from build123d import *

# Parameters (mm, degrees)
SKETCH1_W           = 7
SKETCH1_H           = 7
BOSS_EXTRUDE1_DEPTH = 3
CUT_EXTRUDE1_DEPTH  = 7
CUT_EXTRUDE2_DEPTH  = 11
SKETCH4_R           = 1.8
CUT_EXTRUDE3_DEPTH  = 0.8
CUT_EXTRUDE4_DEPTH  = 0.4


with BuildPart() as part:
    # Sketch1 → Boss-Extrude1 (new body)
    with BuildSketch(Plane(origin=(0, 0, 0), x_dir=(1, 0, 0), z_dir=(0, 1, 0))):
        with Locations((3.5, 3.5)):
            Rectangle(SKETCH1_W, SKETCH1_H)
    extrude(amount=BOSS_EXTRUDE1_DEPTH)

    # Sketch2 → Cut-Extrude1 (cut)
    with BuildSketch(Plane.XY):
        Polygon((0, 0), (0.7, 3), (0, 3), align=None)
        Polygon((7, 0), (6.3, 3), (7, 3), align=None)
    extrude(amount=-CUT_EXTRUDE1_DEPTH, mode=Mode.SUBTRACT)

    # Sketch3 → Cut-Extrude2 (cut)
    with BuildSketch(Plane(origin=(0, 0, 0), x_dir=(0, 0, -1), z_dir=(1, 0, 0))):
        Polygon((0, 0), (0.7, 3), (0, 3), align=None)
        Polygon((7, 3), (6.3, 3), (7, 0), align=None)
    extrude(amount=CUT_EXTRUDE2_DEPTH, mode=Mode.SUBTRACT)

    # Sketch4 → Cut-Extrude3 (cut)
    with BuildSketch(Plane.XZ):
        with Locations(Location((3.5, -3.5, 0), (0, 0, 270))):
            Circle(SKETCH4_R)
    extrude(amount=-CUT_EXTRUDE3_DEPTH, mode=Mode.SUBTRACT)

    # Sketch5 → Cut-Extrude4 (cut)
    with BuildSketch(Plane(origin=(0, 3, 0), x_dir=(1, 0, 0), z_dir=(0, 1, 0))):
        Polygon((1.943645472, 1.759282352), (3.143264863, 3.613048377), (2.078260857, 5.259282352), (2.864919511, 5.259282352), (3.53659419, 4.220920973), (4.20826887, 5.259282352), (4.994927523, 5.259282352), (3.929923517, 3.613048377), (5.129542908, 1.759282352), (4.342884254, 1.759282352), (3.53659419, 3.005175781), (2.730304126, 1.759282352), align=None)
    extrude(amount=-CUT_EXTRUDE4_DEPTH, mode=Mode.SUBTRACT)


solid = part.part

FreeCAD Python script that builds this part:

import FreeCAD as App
import Part
import Sketcher

V = App.Vector

doc = App.newDocument("Part")
params = doc.addObject("Spreadsheet::Sheet", "Params")
for row, (alias, value) in enumerate([
    ("sketch1_width", "7 mm"),
    ("pad1_length", "3 mm"),
    ("sketch2_height", "3 mm"),
    ("sketch2_width", "0.7 mm"),
    ("pocket1_length", "7 mm"),
    ("sketch3_width", "3 mm"),
    ("sketch3_height", "0.7 mm"),
    ("pocket2_length", "11 mm"),
    ("sketch4_diameter", "3.6 mm"),
    ("pocket3_length", "0.8 mm"),
    ("pocket4_length", "0.4 mm"),
], start=1):
    params.set(f"A{row}", alias)
    params.set(f"B{row}", "=" + value)
    params.setAlias(f"B{row}", alias)

body = doc.addObject("PartDesign::Body", "Body")

# Sketch on XZ plane
sketch1 = body.newObject("Sketcher::SketchObject", "Sketch")
sketch1.AttachmentSupport = (doc.getObject("XZ_Plane"), [""])
sketch1.MapMode = "FlatFace"
sketch1.addGeometry([
    Part.LineSegment(V(0, -7, 0), V(0, 0, 0)),
    Part.LineSegment(V(0, 0, 0), V(7, 0, 0)),
    Part.LineSegment(V(7, 0, 0), V(7, -7, 0)),
    Part.LineSegment(V(7, -7, 0), V(0, -7, 0)),
], False)
sketch1.addConstraint([
    Sketcher.Constraint("Coincident", 0, 2, 1, 1),
    Sketcher.Constraint("Coincident", 1, 2, 2, 1),
    Sketcher.Constraint("Coincident", 2, 2, 3, 1),
    Sketcher.Constraint("Coincident", 3, 2, 0, 1),
    Sketcher.Constraint("Vertical", 0),
    Sketcher.Constraint("Horizontal", 1),
    Sketcher.Constraint("Vertical", 2),
    Sketcher.Constraint("Horizontal", 3),
    Sketcher.Constraint("Coincident", 0, 2, -1, 1),
    Sketcher.Constraint("Equal", 3, 0),
    Sketcher.Constraint("DistanceX", 1, 1, 1, 2, 7.0),
])
sketch1.setExpression("Constraints[10]", "Params.sketch1_width")
pad1 = body.newObject("PartDesign::Pad", "Pad")
pad1.Profile = sketch1
pad1.setExpression("Length", "Params.pad1_length")
pad1.Reversed = True

# Sketch on XY plane
sketch2 = body.newObject("Sketcher::SketchObject", "Sketch001")
sketch2.AttachmentSupport = (doc.getObject("XY_Plane"), [""])
sketch2.MapMode = "FlatFace"
sketch2.addGeometry([
    Part.LineSegment(V(0, 0, 0), V(0.7, 3, 0)),  # 0
    Part.LineSegment(V(0.7, 3, 0), V(0, 3, 0)),  # 1
    Part.LineSegment(V(0, 3, 0), V(0, 0, 0)),  # 2
    Part.LineSegment(V(6.3, 3, 0), V(7, 0, 0)),  # 3
    Part.LineSegment(V(7, 0, 0), V(7, 3, 0)),  # 4
    Part.LineSegment(V(7, 3, 0), V(6.3, 3, 0)),  # 5
], False)
sketch2.addConstraint([
    Sketcher.Constraint("Coincident", 0, 2, 1, 1),
    Sketcher.Constraint("Coincident", 1, 2, 2, 1),
    Sketcher.Constraint("Coincident", 2, 2, 0, 1),
    Sketcher.Constraint("Coincident", 3, 2, 4, 1),
    Sketcher.Constraint("Coincident", 4, 2, 5, 1),
    Sketcher.Constraint("Coincident", 5, 2, 3, 1),
    Sketcher.Constraint("Horizontal", 1),
    Sketcher.Constraint("Vertical", 2),
    Sketcher.Constraint("Vertical", 4),
    Sketcher.Constraint("Horizontal", 5),
    Sketcher.Constraint("Coincident", 2, 2, -1, 1),
    Sketcher.Constraint("PointOnObject", 3, 2, -1),
    Sketcher.Constraint("Horizontal", 1, 2, 4, 2),
    Sketcher.Constraint("Equal", 1, 5),
    Sketcher.Constraint("DistanceY", 2, 2, 2, 1, 3.0),
    Sketcher.Constraint("DistanceX", 1, 2, 1, 1, 0.7),
    Sketcher.Constraint("DistanceX", -1, 1, 3, 2, 7.0),
])
sketch2.setExpression("Constraints[14]", "Params.sketch2_height")
sketch2.setExpression("Constraints[15]", "Params.sketch2_width")
pocket1 = body.newObject("PartDesign::Pocket", "Pocket")
pocket1.Profile = sketch2
pocket1.setExpression("Length", "Params.pocket1_length")

# Sketch on YZ plane
sketch3 = body.newObject("Sketcher::SketchObject", "Sketch002")
sketch3.AttachmentSupport = (doc.getObject("YZ_Plane"), [""])
sketch3.MapMode = "FlatFace"
sketch3.addGeometry([
    Part.LineSegment(V(0, 0, 0), V(3, -0.7, 0)),  # 0
    Part.LineSegment(V(3, -0.7, 0), V(3, 0, 0)),  # 1
    Part.LineSegment(V(3, 0, 0), V(0, 0, 0)),  # 2
    Part.LineSegment(V(3, -7, 0), V(3, -6.3, 0)),  # 3
    Part.LineSegment(V(3, -6.3, 0), V(0, -7, 0)),  # 4
    Part.LineSegment(V(0, -7, 0), V(3, -7, 0)),  # 5
], False)
sketch3.addConstraint([
    Sketcher.Constraint("Coincident", 0, 2, 1, 1),
    Sketcher.Constraint("Coincident", 1, 2, 2, 1),
    Sketcher.Constraint("Coincident", 2, 2, 0, 1),
    Sketcher.Constraint("Coincident", 3, 2, 4, 1),
    Sketcher.Constraint("Coincident", 4, 2, 5, 1),
    Sketcher.Constraint("Coincident", 5, 2, 3, 1),
    Sketcher.Constraint("Vertical", 1),
    Sketcher.Constraint("Horizontal", 2),
    Sketcher.Constraint("Vertical", 3),
    Sketcher.Constraint("Horizontal", 5),
    Sketcher.Constraint("Coincident", 2, 2, -1, 1),
    Sketcher.Constraint("PointOnObject", 4, 2, -2),
    Sketcher.Constraint("Vertical", 1, 2, 3, 2),
    Sketcher.Constraint("Equal", 1, 3),
    Sketcher.Constraint("DistanceX", 2, 2, 2, 1, 3.0),
    Sketcher.Constraint("DistanceY", 1, 1, 1, 2, 0.7),
    Sketcher.Constraint("DistanceY", 4, 2, -1, 1, 7.0),
])
sketch3.setExpression("Constraints[14]", "Params.sketch3_width")
sketch3.setExpression("Constraints[15]", "Params.sketch3_height")
pocket2 = body.newObject("PartDesign::Pocket", "Pocket001")
pocket2.Profile = sketch3
pocket2.setExpression("Length", "Params.pocket2_length")
pocket2.Reversed = True

# Sketch on XZ plane
sketch4 = body.newObject("Sketcher::SketchObject", "Sketch003")
sketch4.AttachmentSupport = (doc.getObject("XZ_Plane"), [""])
sketch4.MapMode = "FlatFace"
sketch4.addGeometry(Part.Circle(V(3.5, -3.5, 0), V(0, 0, 1), 1.8), False)
sketch4.addConstraint([
    Sketcher.Constraint("Diameter", 0, 3.6),
    Sketcher.Constraint("DistanceX", -1, 1, 0, 3, 3.5),
    Sketcher.Constraint("DistanceY", 0, 3, -1, 1, 3.5),
])
sketch4.setExpression("Constraints[0]", "Params.sketch4_diameter")
pocket3 = body.newObject("PartDesign::Pocket", "Pocket002")
pocket3.Profile = sketch4
pocket3.setExpression("Length", "Params.pocket3_length")

# Sketch on XZ plane
sketch5 = body.newObject("Sketcher::SketchObject", "Sketch004")
sketch5.AttachmentSupport = (doc.getObject("XZ_Plane"), [""])
sketch5.MapMode = "FlatFace"
sketch5.AttachmentOffset = App.Placement(V(0, 0, -3), App.Rotation())
sketch5.addGeometry([
    Part.LineSegment(V(3.143265, -3.613048, 0), V(1.943645, -1.759282, 0)),  # 0
    Part.LineSegment(V(1.943645, -1.759282, 0), V(2.730304, -1.759282, 0)),  # 1
    Part.LineSegment(V(2.730304, -1.759282, 0), V(3.536594, -3.005176, 0)),  # 2
    Part.LineSegment(V(3.536594, -3.005176, 0), V(4.342884, -1.759282, 0)),  # 3
    Part.LineSegment(V(4.342884, -1.759282, 0), V(5.129543, -1.759282, 0)),  # 4
    Part.LineSegment(V(5.129543, -1.759282, 0), V(3.929924, -3.613048, 0)),  # 5
    Part.LineSegment(V(3.929924, -3.613048, 0), V(4.994928, -5.259282, 0)),  # 6
    Part.LineSegment(V(4.994928, -5.259282, 0), V(4.208269, -5.259282, 0)),  # 7
    Part.LineSegment(V(4.208269, -5.259282, 0), V(3.536594, -4.220921, 0)),  # 8
    Part.LineSegment(V(3.536594, -4.220921, 0), V(2.86492, -5.259282, 0)),  # 9
    Part.LineSegment(V(2.86492, -5.259282, 0), V(2.078261, -5.259282, 0)),  # 10
    Part.LineSegment(V(2.078261, -5.259282, 0), V(3.143265, -3.613048, 0)),  # 11
], False)
sketch5.addConstraint([
    Sketcher.Constraint("Coincident", 0, 2, 1, 1),
    Sketcher.Constraint("Coincident", 1, 2, 2, 1),
    Sketcher.Constraint("Coincident", 2, 2, 3, 1),
    Sketcher.Constraint("Coincident", 3, 2, 4, 1),
    Sketcher.Constraint("Coincident", 4, 2, 5, 1),
    Sketcher.Constraint("Coincident", 5, 2, 6, 1),
    Sketcher.Constraint("Coincident", 6, 2, 7, 1),
    Sketcher.Constraint("Coincident", 7, 2, 8, 1),
    Sketcher.Constraint("Coincident", 8, 2, 9, 1),
    Sketcher.Constraint("Coincident", 9, 2, 10, 1),
    Sketcher.Constraint("Coincident", 10, 2, 11, 1),
    Sketcher.Constraint("Coincident", 11, 2, 0, 1),
    Sketcher.Constraint("Horizontal", 1),
    Sketcher.Constraint("Horizontal", 4),
    Sketcher.Constraint("Horizontal", 7),
    Sketcher.Constraint("Horizontal", 10),
    Sketcher.Constraint("Horizontal", 1, 2, 3, 2),
    Sketcher.Constraint("Horizontal", 7, 2, 9, 2),
    Sketcher.Constraint("Horizontal", 5, 2, 11, 2),
    Sketcher.Constraint("Vertical", 2, 2, 8, 2),
    Sketcher.Constraint("Equal", 1, 4),
    Sketcher.Constraint("Equal", 4, 7),
    Sketcher.Constraint("Equal", 7, 10),
    Sketcher.Constraint("Equal", 2, 3),
    Sketcher.Constraint("Equal", 0, 5),
    Sketcher.Constraint("Equal", 8, 9),
    Sketcher.Constraint("DistanceY", 6, 2, 4, 2, 3.5),
    Sketcher.Constraint("DistanceX", 1, 1, 1, 2, 0.786659),
    Sketcher.Constraint("Distance", 0, 2.208061),
    Sketcher.Constraint("DistanceY", 5, 2, -1, 1, 3.613048),
    Sketcher.Constraint("DistanceX", -1, 1, 7, 2, 4.208269),
    Sketcher.Constraint("DistanceY", 8, 2, -1, 1, 4.220921),
    Sketcher.Constraint("DistanceX", -1, 1, 9, 2, 2.86492),
    Sketcher.Constraint("DistanceX", 1, 2, 2, 2, 0.80629),
    Sketcher.Constraint("DistanceX", 2, 2, 5, 2, 0.393329),
    Sketcher.Constraint("Distance", 2, 1.484033),
])
pocket4 = body.newObject("PartDesign::Pocket", "Pocket003")
pocket4.Profile = sketch5
pocket4.setExpression("Length", "Params.pocket4_length")
pocket4.Reversed = True

doc.recompute()
